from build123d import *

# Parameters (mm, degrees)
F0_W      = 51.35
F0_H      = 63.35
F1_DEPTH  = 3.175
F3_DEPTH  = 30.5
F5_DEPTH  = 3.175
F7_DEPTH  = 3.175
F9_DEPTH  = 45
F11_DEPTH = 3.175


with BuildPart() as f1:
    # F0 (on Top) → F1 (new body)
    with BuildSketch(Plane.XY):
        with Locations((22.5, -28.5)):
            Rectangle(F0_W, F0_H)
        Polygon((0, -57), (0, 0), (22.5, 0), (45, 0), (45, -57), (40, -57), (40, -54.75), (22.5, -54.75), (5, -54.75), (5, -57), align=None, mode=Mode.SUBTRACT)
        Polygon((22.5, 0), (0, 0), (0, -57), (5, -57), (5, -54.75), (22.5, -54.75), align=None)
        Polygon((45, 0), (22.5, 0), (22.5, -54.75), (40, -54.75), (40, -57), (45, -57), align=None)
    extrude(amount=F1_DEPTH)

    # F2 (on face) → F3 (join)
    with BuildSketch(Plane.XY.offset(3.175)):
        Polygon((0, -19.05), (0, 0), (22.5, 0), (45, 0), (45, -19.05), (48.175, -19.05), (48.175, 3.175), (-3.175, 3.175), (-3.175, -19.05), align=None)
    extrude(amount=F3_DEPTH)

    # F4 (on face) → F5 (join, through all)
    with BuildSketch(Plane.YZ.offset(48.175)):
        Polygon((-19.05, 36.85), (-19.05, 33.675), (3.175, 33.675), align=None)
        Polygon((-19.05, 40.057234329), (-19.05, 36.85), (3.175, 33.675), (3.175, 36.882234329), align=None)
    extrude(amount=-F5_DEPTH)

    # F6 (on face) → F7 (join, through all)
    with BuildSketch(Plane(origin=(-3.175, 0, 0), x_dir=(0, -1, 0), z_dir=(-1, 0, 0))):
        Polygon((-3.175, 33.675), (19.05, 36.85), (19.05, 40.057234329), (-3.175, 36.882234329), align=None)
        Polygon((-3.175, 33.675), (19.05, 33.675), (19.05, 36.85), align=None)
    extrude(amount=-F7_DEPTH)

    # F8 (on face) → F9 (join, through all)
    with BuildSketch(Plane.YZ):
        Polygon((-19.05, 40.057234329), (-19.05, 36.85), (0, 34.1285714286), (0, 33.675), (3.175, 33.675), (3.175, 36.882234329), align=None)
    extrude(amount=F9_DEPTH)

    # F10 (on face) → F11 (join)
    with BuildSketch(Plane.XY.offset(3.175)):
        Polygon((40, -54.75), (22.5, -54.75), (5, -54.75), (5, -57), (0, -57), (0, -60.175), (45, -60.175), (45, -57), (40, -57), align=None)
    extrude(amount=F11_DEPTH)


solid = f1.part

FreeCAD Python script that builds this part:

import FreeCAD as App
import Part
import Sketcher

V = App.Vector

doc = App.newDocument("Part")
body = doc.addObject("PartDesign::Body", "Body")

# Sketch on XY plane
sketch1 = body.newObject("Sketcher::SketchObject", "Sketch")
sketch1.AttachmentSupport = (doc.getObject("XY_Plane"), [""])
sketch1.MapMode = "FlatFace"
sketch1.addGeometry([
    Part.LineSegment(V(-3, 3, 0), V(-3, -60, 0)),
    Part.LineSegment(V(-3, -60, 0), V(48, -60, 0)),
    Part.LineSegment(V(48, -60, 0), V(48, 3, 0)),
    Part.LineSegment(V(48, 3, 0), V(-3, 3, 0)),
], False)
sketch1.addConstraint([
    Sketcher.Constraint("Coincident", 0, 2, 1, 1),
    Sketcher.Constraint("Coincident", 1, 2, 2, 1),
    Sketcher.Constraint("Coincident", 2, 2, 3, 1),
    Sketcher.Constraint("Coincident", 3, 2, 0, 1),
    Sketcher.Constraint("Vertical", 0),
    Sketcher.Constraint("Horizontal", 1),
    Sketcher.Constraint("Vertical", 2),
    Sketcher.Constraint("Horizontal", 3),
    Sketcher.Constraint("DistanceX", 1, 1, 1, 2, 51.35),
    Sketcher.Constraint("DistanceY", 0, 2, 0, 1, 63.35),
    Sketcher.Constraint("DistanceX", 0, 2, -1, 1, 3.175),
    Sketcher.Constraint("DistanceY", 0, 2, -1, 1, 60.175),
])
pad1 = body.newObject("PartDesign::Pad", "Pad")
pad1.Profile = sketch1
pad1.Length = 3.175

# Sketch on XY plane
sketch2 = body.newObject("Sketcher::SketchObject", "Sketch001")
sketch2.AttachmentSupport = (doc.getObject("XY_Plane"), [""])
sketch2.MapMode = "FlatFace"
sketch2.AttachmentOffset = App.Placement(V(0, 0, 3.175), App.Rotation())
sketch2.addGeometry([
    Part.LineSegment(V(0, -19.1, 0), V(0, 0, 0)),  # 0
    Part.LineSegment(V(0, 0, 0), V(45, 0, 0)),  # 1
    Part.LineSegment(V(45, 0, 0), V(45, -19.1, 0)),  # 2
    Part.LineSegment(V(45, -19.1, 0), V(48.2, -19.1, 0)),  # 3
    Part.LineSegment(V(48.2, -19.1, 0), V(48.2, 3.2, 0)),  # 4
    Part.LineSegment(V(48.2, 3.2, 0), V(-3.2, 3.2, 0)),  # 5
    Part.LineSegment(V(-3.2, 3.2, 0), V(-3.2, -19.1, 0)),  # 6
    Part.LineSegment(V(-3.2, -19.1, 0), V(0, -19.1, 0)),  # 7
], False)
sketch2.addConstraint([
    Sketcher.Constraint("Coincident", 0, 2, 1, 1),
    Sketcher.Constraint("Coincident", 1, 2, 2, 1),
    Sketcher.Constraint("Coincident", 2, 2, 3, 1),
    Sketcher.Constraint("Coincident", 3, 2, 4, 1),
    Sketcher.Constraint("Coincident", 4, 2, 5, 1),
    Sketcher.Constraint("Coincident", 5, 2, 6, 1),
    Sketcher.Constraint("Coincident", 6, 2, 7, 1),
    Sketcher.Constraint("Coincident", 7, 2, 0, 1),
    Sketcher.Constraint("Vertical", 0),
    Sketcher.Constraint("Horizontal", 1),
    Sketcher.Constraint("Vertical", 2),
    Sketcher.Constraint("Horizontal", 3),
    Sketcher.Constraint("Vertical", 4),
    Sketcher.Constraint("Horizontal", 5),
    Sketcher.Constraint("Vertical", 6),
    Sketcher.Constraint("Horizontal", 7),
    Sketcher.Constraint("Coincident", 0, 2, -1, 1),
    Sketcher.Constraint("Horizontal", 3, 2, 6, 2),
    Sketcher.Constraint("Equal", 3, 7),
    Sketcher.Constraint("DistanceX", 1, 1, 1, 2, 45.0),
    Sketcher.Constraint("DistanceX", 5, 2, 5, 1, 51.35),
    Sketcher.Constraint("DistanceY", 0, 1, 0, 2, 19.05),
    Sketcher.Constraint("DistanceY", 4, 1, 4, 2, 22.225),
])
pad2 = body.newObject("PartDesign::Pad", "Pad001")
pad2.Profile = sketch2
pad2.Length = 30.5

# Sketch on YZ plane
sketch3 = body.newObject("Sketcher::SketchObject", "Sketch002")
sketch3.AttachmentSupport = (doc.getObject("YZ_Plane"), [""])
sketch3.MapMode = "FlatFace"
sketch3.AttachmentOffset = App.Placement(V(0, 0, 48.175), App.Rotation())
sketch3.addGeometry([
    Part.LineSegment(V(-19.1, 33.7, 0), V(3.2, 33.7, 0)),
    Part.LineSegment(V(3.2, 33.7, 0), V(3.2, 36.9, 0)),
    Part.LineSegment(V(3.2, 36.9, 0), V(-19.1, 40.1, 0)),
    Part.LineSegment(V(-19.1, 40.1, 0), V(-19.1, 33.7, 0)),
], False)
sketch3.addConstraint([
    Sketcher.Constraint("Coincident", 0, 2, 1, 1),
    Sketcher.Constraint("Coincident", 1, 2, 2, 1),
    Sketcher.Constraint("Coincident", 2, 2, 3, 1),
    Sketcher.Constraint("Coincident", 3, 2, 0, 1),
    Sketcher.Constraint("Horizontal", 0),
    Sketcher.Constraint("Vertical", 1),
    Sketcher.Constraint("Vertical", 3),
    Sketcher.Constraint("DistanceX", 0, 1, 0, 2, 22.225),
    Sketcher.Constraint("DistanceX", 2, 2, -1, 1, 19.05),
    Sketcher.Constraint("DistanceY", -1, 1, 0, 2, 33.675),
    Sketcher.Constraint("DistanceY", 1, 2, 2, 2, 3.175),
    Sketcher.Constraint("DistanceY", 1, 1, 1, 2, 3.207234),
])
pad3 = body.newObject("PartDesign::Pad", "Pad002")
pad3.Profile = sketch3
pad3.Length = 3.175
pad3.Reversed = True

# Sketch on YZ plane
sketch4 = body.newObject("Sketcher::SketchObject", "Sketch003")
sketch4.AttachmentSupport = (doc.getObject("YZ_Plane"), [""])
sketch4.MapMode = "FlatFace"
sketch4.AttachmentOffset = App.Placement(V(0, 0, -3.175), App.Rotation())
sketch4.addGeometry([
    Part.LineSegment(V(-19.1, 40.1, 0), V(3.2, 36.9, 0)),
    Part.LineSegment(V(3.2, 36.9, 0), V(3.2, 33.7, 0)),
    Part.LineSegment(V(3.2, 33.7, 0), V(-19.1, 33.7, 0)),
    Part.LineSegment(V(-19.1, 33.7, 0), V(-19.1, 40.1, 0)),
], False)
sketch4.addConstraint([
    Sketcher.Constraint("Coincident", 0, 2, 1, 1),
    Sketcher.Constraint("Coincident", 1, 2, 2, 1),
    Sketcher.Constraint("Coincident", 2, 2, 3, 1),
    Sketcher.Constraint("Coincident", 3, 2, 0, 1),
    Sketcher.Constraint("Vertical", 1),
    Sketcher.Constraint("Horizontal", 2),
    Sketcher.Constraint("Vertical", 3),
    Sketcher.Constraint("DistanceX", 2, 2, 2, 1, 22.225),
    Sketcher.Constraint("DistanceX", 2, 2, -1, 1, 19.05),
    Sketcher.Constraint("DistanceY", -1, 1, 1, 2, 33.675),
    Sketcher.Constraint("DistanceY", 0, 2, 3, 2, 3.175),
    Sketcher.Constraint("DistanceY", 1, 2, 1, 1, 3.207234),
])
pad4 = body.newObject("PartDesign::Pad", "Pad003")
pad4.Profile = sketch4
pad4.Length = 3.175

# Sketch on YZ plane
sketch5 = body.newObject("Sketcher::SketchObject", "Sketch004")
sketch5.AttachmentSupport = (doc.getObject("YZ_Plane"), [""])
sketch5.MapMode = "FlatFace"
sketch5.addGeometry([
    Part.LineSegment(V(-19.05, 40.06, 0), V(-19.05, 36.85, 0)),  # 0
    Part.LineSegment(V(-19.05, 36.85, 0), V(0, 34.13, 0)),  # 1
    Part.LineSegment(V(0, 34.13, 0), V(0, 33.67, 0)),  # 2
    Part.LineSegment(V(0, 33.67, 0), V(3.17, 33.67, 0)),  # 3
    Part.LineSegment(V(3.17, 33.67, 0), V(3.17, 36.88, 0)),  # 4
    Part.LineSegment(V(3.17, 36.88, 0), V(-19.05, 40.06, 0)),  # 5
], False)
sketch5.addConstraint([
    Sketcher.Constraint("Coincident", 0, 2, 1, 1),
    Sketcher.Constraint("Coincident", 1, 2, 2, 1),
    Sketcher.Constraint("Coincident", 2, 2, 3, 1),
    Sketcher.Constraint("Coincident", 3, 2, 4, 1),
    Sketcher.Constraint("Coincident", 4, 2, 5, 1),
    Sketcher.Constraint("Coincident", 5, 2, 0, 1),
    Sketcher.Constraint("Vertical", 0),
    Sketcher.Constraint("Vertical", 2),
    Sketcher.Constraint("Horizontal", 3),
    Sketcher.Constraint("Vertical", 4),
    Sketcher.Constraint("PointOnObject", 1, 2, -2),
    Sketcher.Constraint("Parallel", 1, 5),
    Sketcher.Constraint("Equal", 0, 4),
    Sketcher.Constraint("DistanceX", 3, 1, 3, 2, 3.175),
    Sketcher.Constraint("DistanceX", 0, 2, -1, 1, 19.05),
    Sketcher.Constraint("DistanceY", -1, 1, 0, 2, 36.85),
    Sketcher.Constraint("DistanceY", -1, 1, 2, 2, 33.675),
    Sketcher.Constraint("DistanceY", 0, 2, 0, 1, 3.207234),
])
pad5 = body.newObject("PartDesign::Pad", "Pad004")
pad5.Profile = sketch5
pad5.Type = "UpToLast"

# Sketch on XY plane
sketch6 = body.newObject("Sketcher::SketchObject", "Sketch005")
sketch6.AttachmentSupport = (doc.getObject("XY_Plane"), [""])
sketch6.MapMode = "FlatFace"
sketch6.AttachmentOffset = App.Placement(V(0, 0, 3.175), App.Rotation())
sketch6.addGeometry([
    Part.LineSegment(V(40, -54.8, 0), V(5, -54.8, 0)),  # 0
    Part.LineSegment(V(5, -54.8, 0), V(5, -57, 0)),  # 1
    Part.LineSegment(V(5, -57, 0), V(0, -57, 0)),  # 2
    Part.LineSegment(V(0, -57, 0), V(0, -60.2, 0)),  # 3
    Part.LineSegment(V(0, -60.2, 0), V(45, -60.2, 0)),  # 4
    Part.LineSegment(V(45, -60.2, 0), V(45, -57, 0)),  # 5
    Part.LineSegment(V(45, -57, 0), V(40, -57, 0)),  # 6
    Part.LineSegment(V(40, -57, 0), V(40, -54.8, 0)),  # 7
], False)
sketch6.addConstraint([
    Sketcher.Constraint("Coincident", 0, 2, 1, 1),
    Sketcher.Constraint("Coincident", 1, 2, 2, 1),
    Sketcher.Constraint("Coincident", 2, 2, 3, 1),
    Sketcher.Constraint("Coincident", 3, 2, 4, 1),
    Sketcher.Constraint("Coincident", 4, 2, 5, 1),
    Sketcher.Constraint("Coincident", 5, 2, 6, 1),
    Sketcher.Constraint("Coincident", 6, 2, 7, 1),
    Sketcher.Constraint("Coincident", 7, 2, 0, 1),
    Sketcher.Constraint("Horizontal", 0),
    Sketcher.Constraint("Vertical", 1),
    Sketcher.Constraint("Horizontal", 2),
    Sketcher.Constraint("Vertical", 3),
    Sketcher.Constraint("Horizontal", 4),
    Sketcher.Constraint("Vertical", 5),
    Sketcher.Constraint("Horizontal", 6),
    Sketcher.Constraint("Vertical", 7),
    Sketcher.Constraint("PointOnObject", 2, 2, -2),
    Sketcher.Constraint("Horizontal", 2, 2, 5, 2),
    Sketcher.Constraint("Equal", 2, 6),
    Sketcher.Constraint("DistanceX", 0, 2, 0, 1, 35.0),
    Sketcher.Constraint("DistanceX", 2, 2, 2, 1, 5.0),
    Sketcher.Constraint("DistanceY", 1, 2, -1, 1, 57.0),
    Sketcher.Constraint("DistanceY", 1, 2, 1, 1, 2.25),
    Sketcher.Constraint("DistanceY", 3, 2, 3, 1, 3.175),
])
pad6 = body.newObject("PartDesign::Pad", "Pad005")
pad6.Profile = sketch6
pad6.Length = 3.175

doc.recompute()
